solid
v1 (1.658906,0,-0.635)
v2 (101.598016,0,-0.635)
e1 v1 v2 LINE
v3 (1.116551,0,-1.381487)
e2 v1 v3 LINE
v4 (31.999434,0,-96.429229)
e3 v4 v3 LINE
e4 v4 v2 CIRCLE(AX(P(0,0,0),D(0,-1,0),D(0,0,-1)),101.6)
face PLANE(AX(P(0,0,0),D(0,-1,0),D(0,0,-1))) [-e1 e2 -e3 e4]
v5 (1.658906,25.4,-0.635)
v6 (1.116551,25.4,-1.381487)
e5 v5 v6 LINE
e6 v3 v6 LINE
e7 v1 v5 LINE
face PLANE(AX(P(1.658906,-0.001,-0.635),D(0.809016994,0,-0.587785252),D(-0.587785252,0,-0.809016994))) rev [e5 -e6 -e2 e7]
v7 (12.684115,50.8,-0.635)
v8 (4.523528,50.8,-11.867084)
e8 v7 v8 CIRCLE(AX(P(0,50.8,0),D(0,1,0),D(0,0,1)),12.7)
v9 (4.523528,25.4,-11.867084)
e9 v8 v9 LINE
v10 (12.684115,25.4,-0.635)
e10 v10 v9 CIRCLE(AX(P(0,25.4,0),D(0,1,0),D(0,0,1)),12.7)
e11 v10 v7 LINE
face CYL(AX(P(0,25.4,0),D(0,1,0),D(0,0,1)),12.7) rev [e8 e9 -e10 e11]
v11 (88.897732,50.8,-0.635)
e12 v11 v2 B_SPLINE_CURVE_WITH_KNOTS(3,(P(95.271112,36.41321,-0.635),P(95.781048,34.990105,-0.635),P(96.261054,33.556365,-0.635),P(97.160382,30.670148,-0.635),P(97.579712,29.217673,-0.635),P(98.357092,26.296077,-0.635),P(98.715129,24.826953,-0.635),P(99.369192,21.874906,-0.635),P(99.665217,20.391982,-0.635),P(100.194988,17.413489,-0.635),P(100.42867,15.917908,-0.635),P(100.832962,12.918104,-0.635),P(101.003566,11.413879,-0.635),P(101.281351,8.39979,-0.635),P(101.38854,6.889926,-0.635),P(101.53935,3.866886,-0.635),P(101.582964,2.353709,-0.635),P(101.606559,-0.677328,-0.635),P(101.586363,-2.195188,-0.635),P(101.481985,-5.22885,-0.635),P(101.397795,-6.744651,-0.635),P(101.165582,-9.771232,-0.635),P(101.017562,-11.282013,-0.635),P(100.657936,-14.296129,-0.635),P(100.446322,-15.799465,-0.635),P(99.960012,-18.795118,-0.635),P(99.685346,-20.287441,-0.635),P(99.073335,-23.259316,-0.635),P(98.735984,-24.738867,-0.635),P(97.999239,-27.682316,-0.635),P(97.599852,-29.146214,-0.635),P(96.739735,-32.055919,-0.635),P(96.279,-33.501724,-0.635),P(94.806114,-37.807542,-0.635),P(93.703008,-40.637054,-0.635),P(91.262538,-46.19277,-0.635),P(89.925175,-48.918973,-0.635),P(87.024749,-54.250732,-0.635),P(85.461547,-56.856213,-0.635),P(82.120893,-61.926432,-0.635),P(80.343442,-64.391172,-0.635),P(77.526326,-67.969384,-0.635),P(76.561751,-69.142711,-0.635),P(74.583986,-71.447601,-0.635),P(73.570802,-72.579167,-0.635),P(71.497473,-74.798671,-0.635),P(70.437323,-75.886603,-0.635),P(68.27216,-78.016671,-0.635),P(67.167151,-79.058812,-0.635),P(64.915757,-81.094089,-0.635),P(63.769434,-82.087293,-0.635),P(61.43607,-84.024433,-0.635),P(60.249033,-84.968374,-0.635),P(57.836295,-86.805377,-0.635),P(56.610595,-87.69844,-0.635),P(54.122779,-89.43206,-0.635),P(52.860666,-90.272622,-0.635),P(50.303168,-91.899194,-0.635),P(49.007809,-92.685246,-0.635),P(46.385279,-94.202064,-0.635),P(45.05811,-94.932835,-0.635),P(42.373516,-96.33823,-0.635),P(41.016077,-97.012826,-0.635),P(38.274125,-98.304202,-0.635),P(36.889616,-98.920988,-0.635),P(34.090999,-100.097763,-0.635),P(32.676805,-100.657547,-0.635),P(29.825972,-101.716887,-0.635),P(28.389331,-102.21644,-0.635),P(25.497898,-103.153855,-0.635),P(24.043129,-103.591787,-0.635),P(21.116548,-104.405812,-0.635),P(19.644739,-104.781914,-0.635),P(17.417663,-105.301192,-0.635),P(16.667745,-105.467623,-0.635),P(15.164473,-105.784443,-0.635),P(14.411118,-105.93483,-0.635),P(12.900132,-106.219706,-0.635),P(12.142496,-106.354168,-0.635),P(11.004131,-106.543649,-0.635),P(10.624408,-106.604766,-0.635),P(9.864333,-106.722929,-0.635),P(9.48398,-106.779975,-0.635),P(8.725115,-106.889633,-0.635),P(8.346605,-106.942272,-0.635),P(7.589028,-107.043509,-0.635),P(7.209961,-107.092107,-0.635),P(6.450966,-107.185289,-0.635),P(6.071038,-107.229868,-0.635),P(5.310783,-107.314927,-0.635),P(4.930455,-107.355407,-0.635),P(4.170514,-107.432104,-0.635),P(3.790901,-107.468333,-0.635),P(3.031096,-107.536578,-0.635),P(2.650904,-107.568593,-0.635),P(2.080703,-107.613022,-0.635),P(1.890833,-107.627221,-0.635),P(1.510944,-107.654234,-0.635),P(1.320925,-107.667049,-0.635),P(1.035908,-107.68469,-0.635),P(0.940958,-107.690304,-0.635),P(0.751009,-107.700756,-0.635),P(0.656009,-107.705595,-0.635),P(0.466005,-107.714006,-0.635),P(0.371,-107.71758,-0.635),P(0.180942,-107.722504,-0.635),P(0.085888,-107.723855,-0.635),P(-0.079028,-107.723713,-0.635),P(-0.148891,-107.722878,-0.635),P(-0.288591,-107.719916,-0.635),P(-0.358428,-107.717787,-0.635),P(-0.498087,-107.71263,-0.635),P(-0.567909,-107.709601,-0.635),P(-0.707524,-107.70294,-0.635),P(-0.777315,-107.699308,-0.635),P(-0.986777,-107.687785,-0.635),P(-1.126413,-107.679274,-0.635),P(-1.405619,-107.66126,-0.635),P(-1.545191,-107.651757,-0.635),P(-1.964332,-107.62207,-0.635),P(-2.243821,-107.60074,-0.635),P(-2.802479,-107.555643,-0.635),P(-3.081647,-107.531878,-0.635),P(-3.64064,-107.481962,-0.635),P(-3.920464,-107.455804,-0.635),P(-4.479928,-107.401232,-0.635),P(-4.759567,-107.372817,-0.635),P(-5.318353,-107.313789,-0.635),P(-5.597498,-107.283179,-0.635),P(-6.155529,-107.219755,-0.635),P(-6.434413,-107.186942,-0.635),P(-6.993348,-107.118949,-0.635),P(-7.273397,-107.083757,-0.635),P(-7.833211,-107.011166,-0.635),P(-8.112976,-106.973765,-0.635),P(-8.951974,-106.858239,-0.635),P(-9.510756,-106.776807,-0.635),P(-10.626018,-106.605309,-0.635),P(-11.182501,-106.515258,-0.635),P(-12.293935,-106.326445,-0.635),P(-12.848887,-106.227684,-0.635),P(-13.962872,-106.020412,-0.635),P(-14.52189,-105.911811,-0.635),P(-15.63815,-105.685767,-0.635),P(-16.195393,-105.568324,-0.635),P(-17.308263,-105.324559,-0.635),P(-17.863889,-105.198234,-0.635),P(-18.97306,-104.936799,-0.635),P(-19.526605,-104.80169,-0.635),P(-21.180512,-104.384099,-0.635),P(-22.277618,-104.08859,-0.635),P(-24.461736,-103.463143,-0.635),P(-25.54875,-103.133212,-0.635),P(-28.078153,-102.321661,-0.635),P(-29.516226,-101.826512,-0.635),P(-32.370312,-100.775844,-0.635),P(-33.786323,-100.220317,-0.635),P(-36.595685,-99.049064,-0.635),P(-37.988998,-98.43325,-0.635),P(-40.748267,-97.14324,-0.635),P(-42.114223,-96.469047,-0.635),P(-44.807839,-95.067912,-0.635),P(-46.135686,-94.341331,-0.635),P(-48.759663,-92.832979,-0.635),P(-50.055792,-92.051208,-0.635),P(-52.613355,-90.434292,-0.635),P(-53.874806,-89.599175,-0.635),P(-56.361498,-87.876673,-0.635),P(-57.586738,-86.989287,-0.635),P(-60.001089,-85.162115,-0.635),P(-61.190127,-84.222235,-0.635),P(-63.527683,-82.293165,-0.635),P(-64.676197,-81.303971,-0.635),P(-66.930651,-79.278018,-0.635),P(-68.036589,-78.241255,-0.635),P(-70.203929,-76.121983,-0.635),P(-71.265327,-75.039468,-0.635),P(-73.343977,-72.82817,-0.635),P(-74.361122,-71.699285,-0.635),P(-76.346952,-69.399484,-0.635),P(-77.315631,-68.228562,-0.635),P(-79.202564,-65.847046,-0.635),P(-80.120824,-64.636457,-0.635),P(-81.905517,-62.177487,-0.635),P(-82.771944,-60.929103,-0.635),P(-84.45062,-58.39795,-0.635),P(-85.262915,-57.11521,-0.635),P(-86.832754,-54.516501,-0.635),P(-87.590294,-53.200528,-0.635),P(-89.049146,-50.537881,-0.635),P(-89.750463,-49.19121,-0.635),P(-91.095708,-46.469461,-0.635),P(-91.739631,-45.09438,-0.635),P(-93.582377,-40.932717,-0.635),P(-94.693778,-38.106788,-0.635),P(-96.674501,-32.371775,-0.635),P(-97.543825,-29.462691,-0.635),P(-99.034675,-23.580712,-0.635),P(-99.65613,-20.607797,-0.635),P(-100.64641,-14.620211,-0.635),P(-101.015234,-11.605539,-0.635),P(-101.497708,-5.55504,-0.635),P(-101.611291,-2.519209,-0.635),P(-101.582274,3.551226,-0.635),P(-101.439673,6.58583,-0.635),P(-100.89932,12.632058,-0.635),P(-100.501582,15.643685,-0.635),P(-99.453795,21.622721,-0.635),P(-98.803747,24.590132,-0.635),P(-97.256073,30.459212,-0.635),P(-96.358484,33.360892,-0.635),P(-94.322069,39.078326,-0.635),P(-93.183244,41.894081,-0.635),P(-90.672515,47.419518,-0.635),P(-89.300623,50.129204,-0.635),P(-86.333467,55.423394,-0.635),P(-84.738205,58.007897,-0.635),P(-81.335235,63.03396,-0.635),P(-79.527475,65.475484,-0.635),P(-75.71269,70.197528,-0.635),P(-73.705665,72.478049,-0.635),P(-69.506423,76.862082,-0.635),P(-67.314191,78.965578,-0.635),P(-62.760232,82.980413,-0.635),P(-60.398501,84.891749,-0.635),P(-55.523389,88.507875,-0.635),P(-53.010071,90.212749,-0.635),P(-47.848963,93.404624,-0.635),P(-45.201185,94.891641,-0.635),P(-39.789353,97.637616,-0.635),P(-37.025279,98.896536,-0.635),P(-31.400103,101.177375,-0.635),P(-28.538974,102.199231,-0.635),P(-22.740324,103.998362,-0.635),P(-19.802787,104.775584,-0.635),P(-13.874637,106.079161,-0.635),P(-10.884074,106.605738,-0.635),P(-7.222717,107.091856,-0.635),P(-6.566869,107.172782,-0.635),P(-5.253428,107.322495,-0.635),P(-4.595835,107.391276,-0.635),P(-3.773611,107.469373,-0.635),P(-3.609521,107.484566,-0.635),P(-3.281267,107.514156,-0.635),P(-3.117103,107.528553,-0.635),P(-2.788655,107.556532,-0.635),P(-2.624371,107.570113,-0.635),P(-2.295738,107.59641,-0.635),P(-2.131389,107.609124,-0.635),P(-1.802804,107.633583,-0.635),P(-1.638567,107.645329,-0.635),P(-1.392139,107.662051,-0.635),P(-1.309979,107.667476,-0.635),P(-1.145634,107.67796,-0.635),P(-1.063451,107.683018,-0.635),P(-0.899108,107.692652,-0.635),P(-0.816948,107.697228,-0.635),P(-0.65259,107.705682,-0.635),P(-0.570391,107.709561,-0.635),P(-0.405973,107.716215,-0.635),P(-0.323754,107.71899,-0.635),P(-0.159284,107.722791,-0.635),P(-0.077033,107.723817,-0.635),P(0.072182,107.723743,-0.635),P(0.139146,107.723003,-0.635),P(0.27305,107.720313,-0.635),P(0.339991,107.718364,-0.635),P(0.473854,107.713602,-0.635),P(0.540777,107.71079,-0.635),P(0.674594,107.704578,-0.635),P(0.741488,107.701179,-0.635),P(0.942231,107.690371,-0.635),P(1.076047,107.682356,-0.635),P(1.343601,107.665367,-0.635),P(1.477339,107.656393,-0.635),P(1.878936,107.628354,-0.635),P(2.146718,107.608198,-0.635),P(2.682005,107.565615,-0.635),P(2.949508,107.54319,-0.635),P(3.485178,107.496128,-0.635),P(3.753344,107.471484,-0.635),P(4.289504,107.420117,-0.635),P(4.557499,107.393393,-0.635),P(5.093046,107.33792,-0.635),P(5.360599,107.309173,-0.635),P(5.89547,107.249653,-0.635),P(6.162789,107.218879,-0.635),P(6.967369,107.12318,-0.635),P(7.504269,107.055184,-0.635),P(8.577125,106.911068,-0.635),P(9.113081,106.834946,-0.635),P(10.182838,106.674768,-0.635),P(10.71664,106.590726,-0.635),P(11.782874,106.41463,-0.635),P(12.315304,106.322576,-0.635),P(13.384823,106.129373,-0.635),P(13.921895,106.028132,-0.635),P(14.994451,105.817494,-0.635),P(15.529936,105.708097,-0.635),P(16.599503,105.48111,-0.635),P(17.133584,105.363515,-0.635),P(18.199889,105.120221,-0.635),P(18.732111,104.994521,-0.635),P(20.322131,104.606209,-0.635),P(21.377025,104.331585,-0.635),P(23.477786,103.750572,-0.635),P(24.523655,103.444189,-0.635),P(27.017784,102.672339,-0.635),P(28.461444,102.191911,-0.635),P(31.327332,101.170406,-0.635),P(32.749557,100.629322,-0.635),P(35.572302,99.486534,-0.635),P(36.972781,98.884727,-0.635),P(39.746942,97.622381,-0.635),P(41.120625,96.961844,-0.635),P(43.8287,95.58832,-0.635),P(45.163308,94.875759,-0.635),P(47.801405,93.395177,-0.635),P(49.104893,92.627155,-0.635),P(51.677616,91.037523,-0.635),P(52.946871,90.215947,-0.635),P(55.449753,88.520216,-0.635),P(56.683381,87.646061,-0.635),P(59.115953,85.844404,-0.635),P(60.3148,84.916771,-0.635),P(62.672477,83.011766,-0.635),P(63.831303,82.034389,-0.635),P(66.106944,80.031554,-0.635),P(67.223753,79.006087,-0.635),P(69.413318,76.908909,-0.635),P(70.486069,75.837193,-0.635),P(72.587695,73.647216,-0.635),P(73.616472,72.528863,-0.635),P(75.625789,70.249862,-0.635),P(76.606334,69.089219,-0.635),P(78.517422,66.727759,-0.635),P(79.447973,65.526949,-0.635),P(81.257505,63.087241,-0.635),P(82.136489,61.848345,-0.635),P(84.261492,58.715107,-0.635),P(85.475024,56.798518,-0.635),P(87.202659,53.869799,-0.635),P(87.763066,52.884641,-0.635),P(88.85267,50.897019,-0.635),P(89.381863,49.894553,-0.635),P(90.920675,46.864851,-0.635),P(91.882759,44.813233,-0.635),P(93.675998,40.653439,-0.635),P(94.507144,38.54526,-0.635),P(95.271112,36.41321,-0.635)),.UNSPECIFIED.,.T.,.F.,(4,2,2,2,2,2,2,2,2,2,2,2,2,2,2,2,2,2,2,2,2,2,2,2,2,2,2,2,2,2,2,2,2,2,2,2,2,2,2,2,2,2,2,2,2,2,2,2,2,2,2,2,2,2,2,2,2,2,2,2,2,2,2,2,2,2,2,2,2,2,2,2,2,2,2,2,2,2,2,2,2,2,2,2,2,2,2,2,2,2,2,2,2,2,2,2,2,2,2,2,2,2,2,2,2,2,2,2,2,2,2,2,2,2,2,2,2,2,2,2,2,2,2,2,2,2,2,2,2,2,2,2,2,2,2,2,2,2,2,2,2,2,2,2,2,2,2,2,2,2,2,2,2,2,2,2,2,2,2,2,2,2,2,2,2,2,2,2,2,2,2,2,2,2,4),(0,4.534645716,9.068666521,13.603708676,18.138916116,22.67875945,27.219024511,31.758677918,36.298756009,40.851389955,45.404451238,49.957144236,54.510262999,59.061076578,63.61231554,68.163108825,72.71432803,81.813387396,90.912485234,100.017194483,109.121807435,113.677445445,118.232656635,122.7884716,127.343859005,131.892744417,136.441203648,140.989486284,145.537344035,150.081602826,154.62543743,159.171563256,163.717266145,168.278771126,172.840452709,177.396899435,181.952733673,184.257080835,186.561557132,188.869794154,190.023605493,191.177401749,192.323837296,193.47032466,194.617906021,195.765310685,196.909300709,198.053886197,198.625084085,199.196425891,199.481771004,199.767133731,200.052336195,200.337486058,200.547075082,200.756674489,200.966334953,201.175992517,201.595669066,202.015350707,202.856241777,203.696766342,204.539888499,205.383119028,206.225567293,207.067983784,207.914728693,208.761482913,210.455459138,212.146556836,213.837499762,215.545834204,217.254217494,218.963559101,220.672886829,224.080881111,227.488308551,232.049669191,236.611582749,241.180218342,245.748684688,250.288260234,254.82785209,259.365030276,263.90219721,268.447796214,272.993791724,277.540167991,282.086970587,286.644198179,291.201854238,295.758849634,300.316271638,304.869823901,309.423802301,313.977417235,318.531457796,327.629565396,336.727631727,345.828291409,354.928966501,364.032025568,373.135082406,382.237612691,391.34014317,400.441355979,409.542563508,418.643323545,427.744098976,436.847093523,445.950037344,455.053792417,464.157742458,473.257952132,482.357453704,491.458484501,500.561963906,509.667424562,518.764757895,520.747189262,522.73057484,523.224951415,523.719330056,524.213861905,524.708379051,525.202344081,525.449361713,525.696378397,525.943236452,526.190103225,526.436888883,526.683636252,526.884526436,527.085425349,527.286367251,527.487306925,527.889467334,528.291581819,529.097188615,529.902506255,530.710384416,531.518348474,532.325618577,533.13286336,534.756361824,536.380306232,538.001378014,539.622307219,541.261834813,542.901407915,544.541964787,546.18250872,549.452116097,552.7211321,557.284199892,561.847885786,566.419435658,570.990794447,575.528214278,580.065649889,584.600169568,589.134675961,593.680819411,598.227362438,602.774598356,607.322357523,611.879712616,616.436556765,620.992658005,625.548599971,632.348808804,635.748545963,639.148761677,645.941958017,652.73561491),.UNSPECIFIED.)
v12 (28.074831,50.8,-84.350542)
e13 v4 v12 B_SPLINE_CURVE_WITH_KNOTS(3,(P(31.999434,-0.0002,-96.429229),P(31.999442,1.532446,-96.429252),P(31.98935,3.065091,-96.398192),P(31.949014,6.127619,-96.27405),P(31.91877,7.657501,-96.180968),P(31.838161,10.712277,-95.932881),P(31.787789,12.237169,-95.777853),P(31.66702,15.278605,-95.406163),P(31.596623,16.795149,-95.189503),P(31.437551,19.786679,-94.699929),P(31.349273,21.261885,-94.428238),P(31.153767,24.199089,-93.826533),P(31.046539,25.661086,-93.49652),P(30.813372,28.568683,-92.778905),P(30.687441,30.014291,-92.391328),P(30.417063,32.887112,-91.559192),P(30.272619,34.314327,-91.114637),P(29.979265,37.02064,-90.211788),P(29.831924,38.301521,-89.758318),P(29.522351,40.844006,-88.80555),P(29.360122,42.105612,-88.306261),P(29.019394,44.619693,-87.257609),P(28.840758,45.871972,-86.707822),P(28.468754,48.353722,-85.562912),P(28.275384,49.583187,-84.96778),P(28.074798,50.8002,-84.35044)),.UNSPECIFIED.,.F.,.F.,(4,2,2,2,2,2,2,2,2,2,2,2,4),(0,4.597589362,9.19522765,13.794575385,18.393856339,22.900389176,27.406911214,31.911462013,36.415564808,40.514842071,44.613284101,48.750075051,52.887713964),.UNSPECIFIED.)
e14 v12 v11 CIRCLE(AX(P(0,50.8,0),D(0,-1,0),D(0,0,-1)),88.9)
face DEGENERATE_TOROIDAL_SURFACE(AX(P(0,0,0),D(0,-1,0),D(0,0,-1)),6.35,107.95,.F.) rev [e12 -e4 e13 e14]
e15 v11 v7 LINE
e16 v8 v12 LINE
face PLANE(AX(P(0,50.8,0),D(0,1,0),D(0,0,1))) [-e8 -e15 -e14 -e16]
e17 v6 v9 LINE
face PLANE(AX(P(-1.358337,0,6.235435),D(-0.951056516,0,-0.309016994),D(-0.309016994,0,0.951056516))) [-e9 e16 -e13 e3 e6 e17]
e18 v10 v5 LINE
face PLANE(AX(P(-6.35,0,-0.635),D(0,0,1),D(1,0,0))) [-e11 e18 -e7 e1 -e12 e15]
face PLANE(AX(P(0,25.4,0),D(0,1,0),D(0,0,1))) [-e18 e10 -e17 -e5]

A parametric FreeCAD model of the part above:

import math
import FreeCAD as App
import Part
import Sketcher
Q = App.Units.Quantity


def add_polygon(sketch, points):
    """Adds a closed chain of lines whose ends are joined by coincident constraints."""
    first, n = sketch.GeometryCount, len(points)
    for a, b in zip(points, points[1:] + points[:1]):
        sketch.addGeometry(Part.LineSegment(App.Vector(*a, 0), App.Vector(*b, 0)), False)
    for i in range(n):
        sketch.addConstraint(Sketcher.Constraint("Coincident", first + i, 2, first + (i + 1) % n, 1))

doc = App.newDocument("Part")
body = doc.addObject("PartDesign::Body", "Body")

# Sketch on XY plane
sketch1 = doc.addObject("Sketcher::SketchObject", "Sketch")
body.addObject(sketch1)
sketch1.AttachmentSupport = (doc.XY_Plane, [""])
sketch1.MapMode = "FlatFace"
sketch1.addGeometry([
    Part.LineSegment(App.Vector(0, 51, 0), App.Vector(0, 0, 0)),
    Part.LineSegment(App.Vector(0, 0, 0), App.Vector(102, 0, 0)),
    Part.ArcOfCircle(Part.Circle(App.Vector(-6, 0, 0), App.Vector(0, 0, 1), 108), math.radians(0), math.radians(28)),
    Part.LineSegment(App.Vector(89, 51, 0), App.Vector(0, 51, 0)),
], False)
sketch1.addConstraint([
    Sketcher.Constraint("Coincident", 0, 2, 1, 1),
    Sketcher.Constraint("Coincident", 1, 2, 2, 1),
    Sketcher.Constraint("Coincident", 2, 2, 3, 1),
    Sketcher.Constraint("Coincident", 3, 2, 0, 1),
    Sketcher.Constraint("Vertical", 0),
    Sketcher.Constraint("Horizontal", 1),
    Sketcher.Constraint("Horizontal", 3),
    Sketcher.Constraint("Coincident", 0, 2, -1, 1),
    Sketcher.Constraint("PointOnObject", 2, 3, -1),
    Sketcher.Constraint("DistanceX", 1, 1, 1, 2, Q("4 in")),
    Sketcher.Constraint("DistanceY", 0, 2, 0, 1, Q("2 in")),
    Sketcher.Constraint("Radius", 2, Q("4.25 in")),
])
revolution = doc.addObject("PartDesign::Revolution", "Revolution")
body.addObject(revolution)
revolution.Profile = sketch1
revolution.ReferenceAxis = (sketch1, ["V_Axis"])
revolution.Angle = 72

# Sketch on an angled plane
sketch2 = doc.addObject("Sketcher::SketchObject", "Sketch001")
body.addObject(sketch2)
sketch2.Placement = App.Placement(App.Vector(0, 0, 0), App.Rotation(App.Vector(-0.309016994, 0, 0.951056516), App.Vector(0, 0.999999999, 0), App.Vector(-0.951056516, 0, -0.309016994), "ZXY"))
sketch2.addGeometry([
    Part.LineSegment(App.Vector(0, 51, 0), App.Vector(-89, 51, 0)),
    Part.ArcOfCircle(Part.Circle(App.Vector(6, 0, 0), App.Vector(0, 0, 1), 108), math.radians(152), math.radians(180)),
    Part.LineSegment(App.Vector(-102, 0, 0), App.Vector(0, 0, 0)),
    Part.LineSegment(App.Vector(0, 0, 0), App.Vector(0, 51, 0)),
], False)
sketch2.addConstraint([
    Sketcher.Constraint("Coincident", 0, 2, 1, 1),
    Sketcher.Constraint("Coincident", 1, 2, 2, 1),
    Sketcher.Constraint("Coincident", 2, 2, 3, 1),
    Sketcher.Constraint("Coincident", 3, 2, 0, 1),
    Sketcher.Constraint("Horizontal", 0),
    Sketcher.Constraint("Horizontal", 2),
    Sketcher.Constraint("Vertical", 3),
    Sketcher.Constraint("Coincident", 2, 2, -1, 1),
    Sketcher.Constraint("PointOnObject", 1, 3, -1),
    Sketcher.Constraint("DistanceX", 2, 1, 2, 2, Q("4 in")),
    Sketcher.Constraint("DistanceY", 3, 1, 3, 2, Q("2 in")),
    Sketcher.Constraint("Radius", 1, Q("4.25 in")),
])
pocket1 = doc.addObject("PartDesign::Pocket", "Pocket")
body.addObject(pocket1)
pocket1.Profile = sketch2
pocket1.Length = Q("0.025 in")

# Sketch on XY plane
sketch3 = doc.addObject("Sketcher::SketchObject", "Sketch002")
body.addObject(sketch3)
sketch3.AttachmentSupport = (doc.XY_Plane, [""])
sketch3.MapMode = "FlatFace"
sketch3.addGeometry([
    Part.LineSegment(App.Vector(1, 51, 0), App.Vector(1, 0, 0)),
    Part.LineSegment(App.Vector(1, 0, 0), App.Vector(102, 0, 0)),
    Part.ArcOfCircle(Part.Circle(App.Vector(-6, 0, 0), App.Vector(0, 0, 1), 108), math.radians(0), math.radians(28)),
    Part.LineSegment(App.Vector(89, 51, 0), App.Vector(1, 51, 0)),
], False)
sketch3.addConstraint([
    Sketcher.Constraint("Coincident", 0, 2, 1, 1),
    Sketcher.Constraint("Coincident", 1, 2, 2, 1),
    Sketcher.Constraint("Coincident", 2, 2, 3, 1),
    Sketcher.Constraint("Coincident", 3, 2, 0, 1),
    Sketcher.Constraint("Vertical", 0),
    Sketcher.Constraint("Horizontal", 1),
    Sketcher.Constraint("Horizontal", 3),
    Sketcher.Constraint("PointOnObject", 2, 3, -1),
    Sketcher.Constraint("PointOnObject", 0, 2, -1),
    Sketcher.Constraint("DistanceY", 0, 2, 0, 1, Q("2 in")),
    Sketcher.Constraint("Radius", 2, Q("4.25 in")),
    Sketcher.Constraint("DistanceX", -1, 1, 1, 2, Q("4 in")),
    Sketcher.Constraint("DistanceX", 1, 1, 1, 2, 100.932321),
])
pocket2 = doc.addObject("PartDesign::Pocket", "Pocket001")
body.addObject(pocket2)
pocket2.Profile = sketch3
pocket2.Length = Q("0.025 in")

# Sketch on XZ plane
sketch4 = doc.addObject("Sketcher::SketchObject", "Sketch003")
body.addObject(sketch4)
sketch4.AttachmentSupport = (doc.XZ_Plane, [""])
sketch4.MapMode = "FlatFace"
sketch4.AttachmentOffset = App.Placement(App.Vector(0, 0, -2 * 25.4), App.Rotation())
sketch4.addGeometry(Part.Circle(App.Vector(0, 0, 0), App.Vector(0, 0, 1), 13), False)
sketch4.addConstraint([
    Sketcher.Constraint("Coincident", 0, 3, -1, 1),
    Sketcher.Constraint("Diameter", 0, Q("1 in")),
])
pocket3 = doc.addObject("PartDesign::Pocket", "Pocket002")
body.addObject(pocket3)
pocket3.Profile = sketch4
pocket3.Length = Q("1 in")
pocket3.Reversed = True

# Sketch on XZ plane
sketch5 = doc.addObject("Sketcher::SketchObject", "Sketch004")
body.addObject(sketch5)
sketch5.AttachmentSupport = (doc.XZ_Plane, [""])
sketch5.MapMode = "FlatFace"
sketch5.AttachmentOffset = App.Placement(App.Vector(0, 0, -1 * 25.4), App.Rotation())
add_polygon(sketch5, [(1.7, -0.6), (1.1, -1.4), (0.9, -0.6)])  # lines 0-2
sketch5.addConstraint([
    Sketcher.Constraint("Horizontal", 2),
    Sketcher.Constraint("Angle", 0, Q("-126 deg")),
    Sketcher.Constraint("Angle", 1, Q("108 deg")),
    Sketcher.Constraint("DistanceY", 1, 2, -1, 1, Q("0.025 in")),
    Sketcher.Constraint("Distance", 0, 0.922709),
    Sketcher.Constraint("DistanceX", -1, 1, 0, 2, 1.116551),
])
pocket4 = doc.addObject("PartDesign::Pocket", "Pocket003")
body.addObject(pocket4)
pocket4.Profile = sketch5
pocket4.Type = "UpToFirst"
pocket4.Reversed = True

doc.recompute()
